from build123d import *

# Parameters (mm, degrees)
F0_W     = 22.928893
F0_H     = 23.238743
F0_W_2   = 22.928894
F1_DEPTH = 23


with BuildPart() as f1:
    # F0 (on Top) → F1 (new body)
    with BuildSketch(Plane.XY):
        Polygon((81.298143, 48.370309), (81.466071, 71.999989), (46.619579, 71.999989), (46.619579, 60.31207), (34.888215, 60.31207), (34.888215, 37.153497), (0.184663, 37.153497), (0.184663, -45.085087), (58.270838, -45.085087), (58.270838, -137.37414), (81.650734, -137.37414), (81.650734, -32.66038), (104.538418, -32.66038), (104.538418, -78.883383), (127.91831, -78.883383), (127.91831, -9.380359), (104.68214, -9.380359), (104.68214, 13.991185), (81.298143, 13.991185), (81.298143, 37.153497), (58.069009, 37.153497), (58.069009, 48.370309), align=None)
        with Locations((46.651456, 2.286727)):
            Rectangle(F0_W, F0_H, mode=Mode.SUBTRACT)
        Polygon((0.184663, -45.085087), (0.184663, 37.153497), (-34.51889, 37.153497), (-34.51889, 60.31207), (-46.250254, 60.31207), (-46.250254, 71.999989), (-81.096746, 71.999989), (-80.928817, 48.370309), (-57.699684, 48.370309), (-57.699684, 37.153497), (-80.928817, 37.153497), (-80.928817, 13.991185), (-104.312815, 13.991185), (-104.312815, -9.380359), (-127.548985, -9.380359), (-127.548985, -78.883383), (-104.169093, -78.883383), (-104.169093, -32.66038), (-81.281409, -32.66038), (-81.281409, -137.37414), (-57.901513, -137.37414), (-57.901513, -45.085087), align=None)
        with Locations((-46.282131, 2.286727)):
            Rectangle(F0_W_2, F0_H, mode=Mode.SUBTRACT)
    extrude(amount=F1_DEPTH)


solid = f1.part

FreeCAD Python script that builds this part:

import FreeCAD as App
import Part
import Sketcher

V = App.Vector
Q = App.Units.Quantity

doc = App.newDocument("Part")
params = doc.addObject("Spreadsheet::Sheet", "Params")
for row, (alias, value) in enumerate([
    ("pad1_length", "23 mm"),
], start=1):
    params.set(f"A{row}", alias)
    params.set(f"B{row}", "=" + value)
    params.setAlias(f"B{row}", alias)

body = doc.addObject("PartDesign::Body", "Body")

sketch1 = body.newObject("Sketcher::SketchObject", "Sketch")
sketch1.AttachmentSupport = (doc.getObject("XY_Plane"), [""])
sketch1.MapMode = "FlatFace"
sketch1.addGeometry(Part.LineSegment(V(81, 48, 0), V(81, 72, 0)), False)
sketch1.addGeometry(Part.LineSegment(V(81, 72, 0), V(47, 72, 0)), False)
sketch1.addGeometry(Part.LineSegment(V(47, 72, 0), V(47, 60, 0)), False)
sketch1.addGeometry(Part.LineSegment(V(47, 60, 0), V(35, 60, 0)), False)
sketch1.addGeometry(Part.LineSegment(V(35, 60, 0), V(35, 37, 0)), False)
sketch1.addGeometry(Part.LineSegment(V(35, 37, 0), V(-35, 37, 0)), False)
sketch1.addGeometry(Part.LineSegment(V(-35, 37, 0), V(-35, 60, 0)), False)
sketch1.addGeometry(Part.LineSegment(V(-35, 60, 0), V(-46, 60, 0)), False)
sketch1.addGeometry(Part.LineSegment(V(-46, 60, 0), V(-46, 72, 0)), False)
sketch1.addGeometry(Part.LineSegment(V(-46, 72, 0), V(-81, 72, 0)), False)
sketch1.addGeometry(Part.LineSegment(V(-81, 72, 0), V(-81, 48, 0)), False)
sketch1.addGeometry(Part.LineSegment(V(-81, 48, 0), V(-58, 48, 0)), False)
sketch1.addGeometry(Part.LineSegment(V(-58, 48, 0), V(-58, 37, 0)), False)
sketch1.addGeometry(Part.LineSegment(V(-58, 37, 0), V(-81, 37, 0)), False)
sketch1.addGeometry(Part.LineSegment(V(-81, 37, 0), V(-81, 14, 0)), False)
sketch1.addGeometry(Part.LineSegment(V(-81, 14, 0), V(-104, 14, 0)), False)
sketch1.addGeometry(Part.LineSegment(V(-104, 14, 0), V(-104, -9, 0)), False)
sketch1.addGeometry(Part.LineSegment(V(-104, -9, 0), V(-128, -9, 0)), False)
sketch1.addGeometry(Part.LineSegment(V(-128, -9, 0), V(-128, -79, 0)), False)
sketch1.addGeometry(Part.LineSegment(V(-128, -79, 0), V(-104, -79, 0)), False)
sketch1.addGeometry(Part.LineSegment(V(-104, -79, 0), V(-104, -33, 0)), False)
sketch1.addGeometry(Part.LineSegment(V(-104, -33, 0), V(-81, -33, 0)), False)
sketch1.addGeometry(Part.LineSegment(V(-81, -33, 0), V(-81, -137, 0)), False)
sketch1.addGeometry(Part.LineSegment(V(-81, -137, 0), V(-58, -137, 0)), False)
sketch1.addGeometry(Part.LineSegment(V(-58, -137, 0), V(-58, -45, 0)), False)
sketch1.addGeometry(Part.LineSegment(V(-58, -45, 0), V(58, -45, 0)), False)
sketch1.addGeometry(Part.LineSegment(V(58, -45, 0), V(58, -137, 0)), False)
sketch1.addGeometry(Part.LineSegment(V(58, -137, 0), V(82, -137, 0)), False)
sketch1.addGeometry(Part.LineSegment(V(82, -137, 0), V(82, -33, 0)), False)
sketch1.addGeometry(Part.LineSegment(V(82, -33, 0), V(105, -33, 0)), False)
sketch1.addGeometry(Part.LineSegment(V(105, -33, 0), V(105, -79, 0)), False)
sketch1.addGeometry(Part.LineSegment(V(105, -79, 0), V(128, -79, 0)), False)
sketch1.addGeometry(Part.LineSegment(V(128, -79, 0), V(128, -9, 0)), False)
sketch1.addGeometry(Part.LineSegment(V(128, -9, 0), V(105, -9, 0)), False)
sketch1.addGeometry(Part.LineSegment(V(105, -9, 0), V(105, 14, 0)), False)
sketch1.addGeometry(Part.LineSegment(V(105, 14, 0), V(81, 14, 0)), False)
sketch1.addGeometry(Part.LineSegment(V(81, 14, 0), V(81, 37, 0)), False)
sketch1.addGeometry(Part.LineSegment(V(81, 37, 0), V(58, 37, 0)), False)
sketch1.addGeometry(Part.LineSegment(V(58, 37, 0), V(58, 48, 0)), False)
sketch1.addGeometry(Part.LineSegment(V(58, 48, 0), V(81, 48, 0)), False)
sketch1.addGeometry(Part.LineSegment(V(-35, -9, 0), V(-58, -9, 0)), False)
sketch1.addGeometry(Part.LineSegment(V(-58, -9, 0), V(-58, 14, 0)), False)
sketch1.addGeometry(Part.LineSegment(V(-58, 14, 0), V(-35, 14, 0)), False)
sketch1.addGeometry(Part.LineSegment(V(-35, 14, 0), V(-35, -9, 0)), False)
sketch1.addGeometry(Part.LineSegment(V(58, -9, 0), V(35, -9, 0)), False)
sketch1.addGeometry(Part.LineSegment(V(35, -9, 0), V(35, 14, 0)), False)
sketch1.addGeometry(Part.LineSegment(V(35, 14, 0), V(58, 14, 0)), False)
sketch1.addGeometry(Part.LineSegment(V(58, 14, 0), V(58, -9, 0)), False)
sketch1.addConstraint(Sketcher.Constraint("Coincident", 0, 2, 1, 1))
sketch1.addConstraint(Sketcher.Constraint("Coincident", 1, 2, 2, 1))
sketch1.addConstraint(Sketcher.Constraint("Coincident", 2, 2, 3, 1))
sketch1.addConstraint(Sketcher.Constraint("Coincident", 3, 2, 4, 1))
sketch1.addConstraint(Sketcher.Constraint("Coincident", 4, 2, 5, 1))
sketch1.addConstraint(Sketcher.Constraint("Coincident", 5, 2, 6, 1))
sketch1.addConstraint(Sketcher.Constraint("Coincident", 6, 2, 7, 1))
sketch1.addConstraint(Sketcher.Constraint("Coincident", 7, 2, 8, 1))
sketch1.addConstraint(Sketcher.Constraint("Coincident", 8, 2, 9, 1))
sketch1.addConstraint(Sketcher.Constraint("Coincident", 9, 2, 10, 1))
sketch1.addConstraint(Sketcher.Constraint("Coincident", 10, 2, 11, 1))
sketch1.addConstraint(Sketcher.Constraint("Coincident", 11, 2, 12, 1))
sketch1.addConstraint(Sketcher.Constraint("Coincident", 12, 2, 13, 1))
sketch1.addConstraint(Sketcher.Constraint("Coincident", 13, 2, 14, 1))
sketch1.addConstraint(Sketcher.Constraint("Coincident", 14, 2, 15, 1))
sketch1.addConstraint(Sketcher.Constraint("Coincident", 15, 2, 16, 1))
sketch1.addConstraint(Sketcher.Constraint("Coincident", 16, 2, 17, 1))
sketch1.addConstraint(Sketcher.Constraint("Coincident", 17, 2, 18, 1))
sketch1.addConstraint(Sketcher.Constraint("Coincident", 18, 2, 19, 1))
sketch1.addConstraint(Sketcher.Constraint("Coincident", 19, 2, 20, 1))
sketch1.addConstraint(Sketcher.Constraint("Coincident", 20, 2, 21, 1))
sketch1.addConstraint(Sketcher.Constraint("Coincident", 21, 2, 22, 1))
sketch1.addConstraint(Sketcher.Constraint("Coincident", 22, 2, 23, 1))
sketch1.addConstraint(Sketcher.Constraint("Coincident", 23, 2, 24, 1))
sketch1.addConstraint(Sketcher.Constraint("Coincident", 24, 2, 25, 1))
sketch1.addConstraint(Sketcher.Constraint("Coincident", 25, 2, 26, 1))
sketch1.addConstraint(Sketcher.Constraint("Coincident", 26, 2, 27, 1))
sketch1.addConstraint(Sketcher.Constraint("Coincident", 27, 2, 28, 1))
sketch1.addConstraint(Sketcher.Constraint("Coincident", 28, 2, 29, 1))
sketch1.addConstraint(Sketcher.Constraint("Coincident", 29, 2, 30, 1))
sketch1.addConstraint(Sketcher.Constraint("Coincident", 30, 2, 31, 1))
sketch1.addConstraint(Sketcher.Constraint("Coincident", 31, 2, 32, 1))
sketch1.addConstraint(Sketcher.Constraint("Coincident", 32, 2, 33, 1))
sketch1.addConstraint(Sketcher.Constraint("Coincident", 33, 2, 34, 1))
sketch1.addConstraint(Sketcher.Constraint("Coincident", 34, 2, 35, 1))
sketch1.addConstraint(Sketcher.Constraint("Coincident", 35, 2, 36, 1))
sketch1.addConstraint(Sketcher.Constraint("Coincident", 36, 2, 37, 1))
sketch1.addConstraint(Sketcher.Constraint("Coincident", 37, 2, 38, 1))
sketch1.addConstraint(Sketcher.Constraint("Coincident", 38, 2, 39, 1))
sketch1.addConstraint(Sketcher.Constraint("Coincident", 39, 2, 0, 1))
sketch1.addConstraint(Sketcher.Constraint("Coincident", 40, 2, 41, 1))
sketch1.addConstraint(Sketcher.Constraint("Coincident", 41, 2, 42, 1))
sketch1.addConstraint(Sketcher.Constraint("Coincident", 42, 2, 43, 1))
sketch1.addConstraint(Sketcher.Constraint("Coincident", 43, 2, 40, 1))
sketch1.addConstraint(Sketcher.Constraint("Coincident", 44, 2, 45, 1))
sketch1.addConstraint(Sketcher.Constraint("Coincident", 45, 2, 46, 1))
sketch1.addConstraint(Sketcher.Constraint("Coincident", 46, 2, 47, 1))
sketch1.addConstraint(Sketcher.Constraint("Coincident", 47, 2, 44, 1))
sketch1.addConstraint(Sketcher.Constraint("Horizontal", 1))
sketch1.addConstraint(Sketcher.Constraint("Vertical", 2))
sketch1.addConstraint(Sketcher.Constraint("Horizontal", 3))
sketch1.addConstraint(Sketcher.Constraint("Vertical", 4))
sketch1.addConstraint(Sketcher.Constraint("Horizontal", 5))
sketch1.addConstraint(Sketcher.Constraint("Vertical", 6))
sketch1.addConstraint(Sketcher.Constraint("Horizontal", 7))
sketch1.addConstraint(Sketcher.Constraint("Vertical", 8))
sketch1.addConstraint(Sketcher.Constraint("Horizontal", 9))
sketch1.addConstraint(Sketcher.Constraint("Horizontal", 11))
sketch1.addConstraint(Sketcher.Constraint("Vertical", 12))
sketch1.addConstraint(Sketcher.Constraint("Horizontal", 13))
sketch1.addConstraint(Sketcher.Constraint("Vertical", 14))
sketch1.addConstraint(Sketcher.Constraint("Horizontal", 15))
sketch1.addConstraint(Sketcher.Constraint("Vertical", 16))
sketch1.addConstraint(Sketcher.Constraint("Horizontal", 17))
sketch1.addConstraint(Sketcher.Constraint("Vertical", 18))
sketch1.addConstraint(Sketcher.Constraint("Horizontal", 19))
sketch1.addConstraint(Sketcher.Constraint("Vertical", 20))
sketch1.addConstraint(Sketcher.Constraint("Horizontal", 21))
sketch1.addConstraint(Sketcher.Constraint("Vertical", 22))
sketch1.addConstraint(Sketcher.Constraint("Horizontal", 23))
sketch1.addConstraint(Sketcher.Constraint("Vertical", 24))
sketch1.addConstraint(Sketcher.Constraint("Horizontal", 25))
sketch1.addConstraint(Sketcher.Constraint("Vertical", 26))
sketch1.addConstraint(Sketcher.Constraint("Horizontal", 27))
sketch1.addConstraint(Sketcher.Constraint("Vertical", 28))
sketch1.addConstraint(Sketcher.Constraint("Horizontal", 29))
sketch1.addConstraint(Sketcher.Constraint("Vertical", 30))
sketch1.addConstraint(Sketcher.Constraint("Horizontal", 31))
sketch1.addConstraint(Sketcher.Constraint("Vertical", 32))
sketch1.addConstraint(Sketcher.Constraint("Horizontal", 33))
sketch1.addConstraint(Sketcher.Constraint("Vertical", 34))
sketch1.addConstraint(Sketcher.Constraint("Horizontal", 35))
sketch1.addConstraint(Sketcher.Constraint("Vertical", 36))
sketch1.addConstraint(Sketcher.Constraint("Horizontal", 37))
sketch1.addConstraint(Sketcher.Constraint("Vertical", 38))
sketch1.addConstraint(Sketcher.Constraint("Horizontal", 39))
sketch1.addConstraint(Sketcher.Constraint("Horizontal", 40))
sketch1.addConstraint(Sketcher.Constraint("Vertical", 41))
sketch1.addConstraint(Sketcher.Constraint("Horizontal", 42))
sketch1.addConstraint(Sketcher.Constraint("Vertical", 43))
sketch1.addConstraint(Sketcher.Constraint("Horizontal", 44))
sketch1.addConstraint(Sketcher.Constraint("Vertical", 45))
sketch1.addConstraint(Sketcher.Constraint("Horizontal", 46))
sketch1.addConstraint(Sketcher.Constraint("Vertical", 47))
sketch1.addConstraint(Sketcher.Constraint("Horizontal", 3, 2, 6, 2))
sketch1.addConstraint(Sketcher.Constraint("Horizontal", 1, 2, 8, 2))
sketch1.addConstraint(Sketcher.Constraint("Horizontal", 5, 2, 12, 2))
sketch1.addConstraint(Sketcher.Constraint("Horizontal", 23, 2, 26, 2))
sketch1.addConstraint(Sketcher.Constraint("Horizontal", 21, 2, 28, 2))
sketch1.addConstraint(Sketcher.Constraint("Horizontal", 19, 2, 30, 2))
sketch1.addConstraint(Sketcher.Constraint("Horizontal", 17, 2, 32, 2))
sketch1.addConstraint(Sketcher.Constraint("Horizontal", 15, 2, 34, 2))
sketch1.addConstraint(Sketcher.Constraint("Horizontal", 13, 2, 36, 2))
sketch1.addConstraint(Sketcher.Constraint("Horizontal", 11, 2, 38, 2))
sketch1.addConstraint(Sketcher.Constraint("Horizontal", 43, 2, 44, 2))
sketch1.addConstraint(Sketcher.Constraint("Horizontal", 42, 2, 45, 2))
sketch1.addConstraint(Sketcher.Constraint("Vertical", 10, 2, 13, 2))
sketch1.addConstraint(Sketcher.Constraint("Vertical", 36, 2, 39, 2))
sketch1.addConstraint(Sketcher.Constraint("Equal", 3, 7))
sketch1.addConstraint(Sketcher.Constraint("Equal", 1, 9))
sketch1.addConstraint(Sketcher.Constraint("Equal", 23, 27))
sketch1.addConstraint(Sketcher.Constraint("Equal", 21, 29))
sketch1.addConstraint(Sketcher.Constraint("Equal", 19, 31))
sketch1.addConstraint(Sketcher.Constraint("Equal", 17, 33))
sketch1.addConstraint(Sketcher.Constraint("Equal", 15, 35))
sketch1.addConstraint(Sketcher.Constraint("Equal", 13, 37))
sketch1.addConstraint(Sketcher.Constraint("Equal", 42, 44))
sketch1.addConstraint(Sketcher.Constraint("DistanceX", 15, 2, 15, 1, Q("23.383998 mm")))
sketch1.addConstraint(Sketcher.Constraint("DistanceX", 12, 2, 42, 2, Q("22.882 mm")))
sketch1.addConstraint(Sketcher.Constraint("DistanceX", 44, 2, 37, 2, Q("22.881999 mm")))
sketch1.addConstraint(Sketcher.Constraint("DistanceX", 1, 2, 1, 1, Q("34.846492 mm")))
sketch1.addConstraint(Sketcher.Constraint("DistanceX", 17, 2, 17, 1, Q("23.23617 mm")))
sketch1.addConstraint(Sketcher.Constraint("DistanceX", 19, 1, 19, 2, Q("23.379892 mm")))
sketch1.addConstraint(Sketcher.Constraint("DistanceX", 25, 1, 25, 2, Q("116.172351 mm")))
sketch1.addConstraint(Sketcher.Constraint("DistanceY", 2, 2, 2, 1, Q("11.687919 mm")))
sketch1.addConstraint(Sketcher.Constraint("DistanceY", 12, 2, 12, 1, Q("11.216812 mm")))
sketch1.addConstraint(Sketcher.Constraint("DistanceY", 14, 2, 14, 1, Q("23.162312 mm")))
sketch1.addConstraint(Sketcher.Constraint("DistanceY", 22, 2, 22, 1, Q("104.71376 mm")))
sketch1.addConstraint(Sketcher.Constraint("DistanceY", -1, 1, 41, 2, Q("13.906099 mm")))
sketch1.addConstraint(Sketcher.Constraint("DistanceY", 41, 2, 12, 2, Q("23.247399 mm")))
sketch1.addConstraint(Sketcher.Constraint("DistanceX", 3, 2, 3, 1, Q("11.731364 mm")))
sketch1.addConstraint(Sketcher.Constraint("DistanceX", 5, 2, 5, 1, Q("69.407105 mm")))
sketch1.addConstraint(Sketcher.Constraint("DistanceX", 11, 1, 11, 2, Q("23.229133 mm")))
sketch1.addConstraint(Sketcher.Constraint("DistanceX", 21, 1, 21, 2, Q("22.887684 mm")))
sketch1.addConstraint(Sketcher.Constraint("DistanceX", 23, 1, 23, 2, Q("23.379896 mm")))
sketch1.addConstraint(Sketcher.Constraint("DistanceX", 40, 2, 40, 1, Q("22.928894 mm")))
sketch1.addConstraint(Sketcher.Constraint("DistanceY", 4, 2, 4, 1, Q("23.158573 mm")))
sketch1.addConstraint(Sketcher.Constraint("DistanceY", 16, 2, 16, 1, Q("23.371544 mm")))
sketch1.addConstraint(Sketcher.Constraint("DistanceY", 18, 2, 18, 1, Q("69.503024 mm")))
sketch1.addConstraint(Sketcher.Constraint("DistanceY", 20, 1, 20, 2, Q("46.223003 mm")))
sketch1.addConstraint(Sketcher.Constraint("DistanceY", 24, 1, 24, 2, Q("92.289053 mm")))
sketch1.addConstraint(Sketcher.Constraint("DistanceY", 41, 1, 41, 2, Q("23.238743 mm")))
sketch1.addConstraint(Sketcher.Constraint("DistanceX", -1, 1, 0, 2, Q("81.466071 mm")))
sketch1.addConstraint(Sketcher.Constraint("DistanceX", 21, 2, -1, 1, Q("81.281409 mm")))
pad1 = body.newObject("PartDesign::Pad", "Pad")
pad1.Profile = sketch1
pad1.setExpression("Length", "Params.pad1_length")

doc.recompute()
